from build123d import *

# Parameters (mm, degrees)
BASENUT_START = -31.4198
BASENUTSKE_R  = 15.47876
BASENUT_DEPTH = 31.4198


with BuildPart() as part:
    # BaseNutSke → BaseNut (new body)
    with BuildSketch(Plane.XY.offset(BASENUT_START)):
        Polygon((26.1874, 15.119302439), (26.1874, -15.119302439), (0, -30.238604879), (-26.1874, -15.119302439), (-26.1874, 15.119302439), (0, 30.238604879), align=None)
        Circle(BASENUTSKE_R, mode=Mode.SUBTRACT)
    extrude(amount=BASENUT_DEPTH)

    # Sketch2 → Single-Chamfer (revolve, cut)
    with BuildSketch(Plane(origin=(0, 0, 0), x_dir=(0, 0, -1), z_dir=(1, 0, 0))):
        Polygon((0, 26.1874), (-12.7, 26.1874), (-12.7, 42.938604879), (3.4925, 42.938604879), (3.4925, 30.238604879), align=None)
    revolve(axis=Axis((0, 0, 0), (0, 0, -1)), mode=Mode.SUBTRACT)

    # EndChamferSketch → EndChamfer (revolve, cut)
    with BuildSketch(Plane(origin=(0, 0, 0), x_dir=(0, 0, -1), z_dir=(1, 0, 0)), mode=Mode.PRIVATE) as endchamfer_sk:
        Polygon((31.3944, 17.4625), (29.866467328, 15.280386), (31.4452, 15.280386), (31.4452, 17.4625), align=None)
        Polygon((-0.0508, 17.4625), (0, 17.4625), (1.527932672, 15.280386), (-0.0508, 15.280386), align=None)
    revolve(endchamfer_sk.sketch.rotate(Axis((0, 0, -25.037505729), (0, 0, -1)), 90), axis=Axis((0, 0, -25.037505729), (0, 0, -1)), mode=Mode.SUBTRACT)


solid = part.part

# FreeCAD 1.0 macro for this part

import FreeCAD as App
import Part
import Sketcher
from FreeCAD import Vector
Q = App.Units.Quantity


def add_polygon(sketch, points):
    """Adds a closed chain of lines whose ends are joined by coincident constraints."""
    first, n = sketch.GeometryCount, len(points)
    for a, b in zip(points, points[1:] + points[:1]):
        sketch.addGeometry(Part.LineSegment(App.Vector(*a, 0), App.Vector(*b, 0)), False)
    for i in range(n):
        sketch.addConstraint(Sketcher.Constraint("Coincident", first + i, 2, first + (i + 1) % n, 1))

doc = App.newDocument("Part")
params = doc.addObject("Spreadsheet::Sheet", "Params")
for row, (alias, value) in enumerate([
    ("pad1_length", "1.237 in"),
    ("sketch2_width", "0.5 in"),
    ("groove_angle", "360 deg"),
    ("sketch3_height", "0.002 in"),
    ("groove2_angle", "360 deg"),
], start=1):
    params.set(f"A{row}", alias)
    params.set(f"B{row}", "=" + value)
    params.setAlias(f"B{row}", alias)

body = doc.addObject("PartDesign::Body", "Body")

sketch1 = body.newObject("Sketcher::SketchObject", "Sketch")
sketch1.AttachmentSupport = (doc.getObject("XY_Plane"), [""])
sketch1.MapMode = "FlatFace"
sketch1.AttachmentOffset = App.Placement(Vector(0, 0, -1.237 * 25.4), App.Rotation())
add_polygon(sketch1, [(26, -15), (26, 15), (0, 30), (-26, 15), (-26, -15), (0, -30)])
sketch1.addGeometry(Part.Circle(Vector(0, 0, 0), Vector(0, 0, 1), 15), False)
sketch1.addConstraint(Sketcher.Constraint("Vertical", 0))
sketch1.addConstraint(Sketcher.Constraint("Vertical", 3))
sketch1.addConstraint(Sketcher.Constraint("Coincident", 6, 3, -1, 1))
sketch1.addConstraint(Sketcher.Constraint("Symmetric", 0, 2, 3, 2, -1, 1))
sketch1.addConstraint(Sketcher.Constraint("Symmetric", 1, 2, 4, 2, -1, 1))
sketch1.addConstraint(Sketcher.Constraint("PointOnObject", 1, 2, -2))
sketch1.addConstraint(Sketcher.Constraint("Parallel", 2, 5))
sketch1.addConstraint(Sketcher.Constraint("Horizontal", 0, 2, 2, 2))
sketch1.addConstraint(Sketcher.Constraint("Angle", 1, Q("150 deg")))
sketch1.addConstraint(Sketcher.Constraint("Diameter", 6, Q("1.2188 in")))
sketch1.addConstraint(Sketcher.Constraint("DistanceX", -1, 1, 0, 2, Q("1.031 in")))
sketch1.addConstraint(Sketcher.Constraint("DistanceY", 0, 1, 0, 2, Q("30.238605 mm")))
pad1 = body.newObject("PartDesign::Pad", "Pad")
pad1.Profile = sketch1
pad1.setExpression("Length", "Params.pad1_length")

sketch2 = body.newObject("Sketcher::SketchObject", "Sketch001")
sketch2.AttachmentSupport = (doc.getObject("YZ_Plane"), [""])
sketch2.MapMode = "FlatFace"
add_polygon(sketch2, [(26, 13), (26, 0), (30, -3), (43, -3), (43, 13)])
sketch2.addConstraint(Sketcher.Constraint("Vertical", 0))
sketch2.addConstraint(Sketcher.Constraint("Horizontal", 2))
sketch2.addConstraint(Sketcher.Constraint("Vertical", 3))
sketch2.addConstraint(Sketcher.Constraint("Horizontal", 4))
sketch2.addConstraint(Sketcher.Constraint("PointOnObject", 0, 2, -1))
sketch2.addConstraint(Sketcher.Constraint("Equal", 2, 0))
sketch2.addConstraint(Sketcher.Constraint("DistanceX", 2, 1, 2, 2, Q("0.5 in")))
sketch2.addConstraint(Sketcher.Constraint("DistanceY", 3, 1, 3, 2, Q("0.6375 in")))
sketch2.addConstraint(Sketcher.Constraint("DistanceX", -1, 1, 0, 2, Q("1.031 in")))
sketch2.addConstraint(Sketcher.Constraint("DistanceX", 4, 2, 4, 1, Q("16.751205 mm")))
sketch2.setExpression("Constraints[11]", "Params.sketch2_width")
groove = body.newObject("PartDesign::Groove", "Groove")
groove.Profile = sketch2
groove.ReferenceAxis = (sketch2, ["V_Axis"])
groove.setExpression("Angle", "Params.groove_angle")

sketch3 = body.newObject("Sketcher::SketchObject", "Sketch002")
sketch3.AttachmentSupport = (doc.getObject("YZ_Plane"), [""])
sketch3.MapMode = "FlatFace"
add_polygon(sketch3, [(17.46, -31.39), (15.28, -29.87), (15.28, -31.45), (17.46, -31.45)])
add_polygon(sketch3, [(17.46, 0), (17.46, 0.05), (15.28, 0.05), (15.28, -1.53)])
sketch3.addConstraint(Sketcher.Constraint("Vertical", 1))
sketch3.addConstraint(Sketcher.Constraint("Horizontal", 2))
sketch3.addConstraint(Sketcher.Constraint("Vertical", 3))
sketch3.addConstraint(Sketcher.Constraint("Vertical", 4))
sketch3.addConstraint(Sketcher.Constraint("Horizontal", 5))
sketch3.addConstraint(Sketcher.Constraint("Vertical", 6))
sketch3.addConstraint(Sketcher.Constraint("PointOnObject", 7, 2, -1))
sketch3.addConstraint(Sketcher.Constraint("Vertical", 3, 2, 4, 2))
sketch3.addConstraint(Sketcher.Constraint("Vertical", 1, 2, 5, 2))
sketch3.addConstraint(Sketcher.Constraint("Equal", 3, 4))
sketch3.addConstraint(Sketcher.Constraint("Equal", 1, 6))
sketch3.addConstraint(Sketcher.Constraint("Angle", 0, Q("145 deg")))
sketch3.addConstraint(Sketcher.Constraint("DistanceY", 3, 1, 3, 2, Q("0.002 in")))
sketch3.addConstraint(Sketcher.Constraint("DistanceY", 2, 2, 4, 2, Q("1.24 in")))
sketch3.addConstraint(Sketcher.Constraint("DistanceX", -1, 1, 2, 2, Q("0.6875 in")))
sketch3.addConstraint(Sketcher.Constraint("Distance", 0, Q("2.663869 mm")))
sketch3.setExpression("Constraints[20]", "Params.sketch3_height")
groove2 = body.newObject("PartDesign::Groove", "Groove001")
groove2.Profile = sketch3
groove2.ReferenceAxis = (sketch3, ["V_Axis"])
groove2.setExpression("Angle", "Params.groove2_angle")

doc.recompute()
